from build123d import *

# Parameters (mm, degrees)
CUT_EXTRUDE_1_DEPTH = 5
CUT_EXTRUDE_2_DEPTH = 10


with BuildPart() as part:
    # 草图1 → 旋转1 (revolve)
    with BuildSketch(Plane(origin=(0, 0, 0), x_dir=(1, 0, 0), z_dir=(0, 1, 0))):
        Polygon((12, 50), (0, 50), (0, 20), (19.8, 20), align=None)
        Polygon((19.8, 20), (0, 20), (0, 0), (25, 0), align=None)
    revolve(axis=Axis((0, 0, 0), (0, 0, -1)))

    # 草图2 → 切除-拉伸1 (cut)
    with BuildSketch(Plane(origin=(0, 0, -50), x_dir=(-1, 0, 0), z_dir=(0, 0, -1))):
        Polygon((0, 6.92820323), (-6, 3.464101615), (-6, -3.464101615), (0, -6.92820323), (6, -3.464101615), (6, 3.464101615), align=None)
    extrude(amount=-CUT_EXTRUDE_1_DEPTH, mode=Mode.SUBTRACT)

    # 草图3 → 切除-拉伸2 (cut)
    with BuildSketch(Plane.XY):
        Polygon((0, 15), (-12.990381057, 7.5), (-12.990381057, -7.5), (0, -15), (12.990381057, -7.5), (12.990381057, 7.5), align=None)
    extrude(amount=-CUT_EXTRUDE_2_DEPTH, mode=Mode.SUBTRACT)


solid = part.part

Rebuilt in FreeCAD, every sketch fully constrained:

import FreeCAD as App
import Part
import Sketcher
Q = App.Units.Quantity

doc = App.newDocument("Part")
body = doc.addObject("PartDesign::Body", "Body")

sketch1 = body.newObject("Sketcher::SketchObject", "Sketch")
sketch1.AttachmentSupport = (doc.getObject("XZ_Plane"), [""])
sketch1.MapMode = "FlatFace"
sketch1.addGeometry(Part.LineSegment(App.Vector(12, -50, 0), App.Vector(0, -50, 0)), False)
sketch1.addGeometry(Part.LineSegment(App.Vector(0, -50, 0), App.Vector(0, 0, 0)), False)
sketch1.addGeometry(Part.LineSegment(App.Vector(0, 0, 0), App.Vector(25, 0, 0)), False)
sketch1.addGeometry(Part.LineSegment(App.Vector(25, 0, 0), App.Vector(12, -50, 0)), False)
sketch1.addConstraint(Sketcher.Constraint("Coincident", 0, 2, 1, 1))
sketch1.addConstraint(Sketcher.Constraint("Coincident", 1, 2, 2, 1))
sketch1.addConstraint(Sketcher.Constraint("Coincident", 2, 2, 3, 1))
sketch1.addConstraint(Sketcher.Constraint("Coincident", 3, 2, 0, 1))
sketch1.addConstraint(Sketcher.Constraint("Horizontal", 0))
sketch1.addConstraint(Sketcher.Constraint("Vertical", 1))
sketch1.addConstraint(Sketcher.Constraint("Horizontal", 2))
sketch1.addConstraint(Sketcher.Constraint("Coincident", 1, 2, -1, 1))
sketch1.addConstraint(Sketcher.Constraint("DistanceX", 0, 2, 0, 1, 12.0))
sketch1.addConstraint(Sketcher.Constraint("DistanceX", 2, 1, 2, 2, 25.0))
sketch1.addConstraint(Sketcher.Constraint("DistanceY", 1, 1, 1, 2, 50.0))
revolution = body.newObject("PartDesign::Revolution", "Revolution")
revolution.Profile = sketch1
revolution.ReferenceAxis = (sketch1, ["V_Axis"])
revolution.Angle = 360

sketch2 = body.newObject("Sketcher::SketchObject", "Sketch001")
sketch2.AttachmentSupport = (doc.getObject("XY_Plane"), [""])
sketch2.MapMode = "FlatFace"
sketch2.AttachmentOffset = App.Placement(App.Vector(0, 0, -50), App.Rotation())
sketch2.addGeometry(Part.LineSegment(App.Vector(0, 7, 0), App.Vector(6, 3, 0)), False)
sketch2.addGeometry(Part.LineSegment(App.Vector(6, 3, 0), App.Vector(6, -3, 0)), False)
sketch2.addGeometry(Part.LineSegment(App.Vector(6, -3, 0), App.Vector(0, -7, 0)), False)
sketch2.addGeometry(Part.LineSegment(App.Vector(0, -7, 0), App.Vector(-6, -3, 0)), False)
sketch2.addGeometry(Part.LineSegment(App.Vector(-6, -3, 0), App.Vector(-6, 3, 0)), False)
sketch2.addGeometry(Part.LineSegment(App.Vector(-6, 3, 0), App.Vector(0, 7, 0)), False)
sketch2.addConstraint(Sketcher.Constraint("Coincident", 0, 2, 1, 1))
sketch2.addConstraint(Sketcher.Constraint("Coincident", 1, 2, 2, 1))
sketch2.addConstraint(Sketcher.Constraint("Coincident", 2, 2, 3, 1))
sketch2.addConstraint(Sketcher.Constraint("Coincident", 3, 2, 4, 1))
sketch2.addConstraint(Sketcher.Constraint("Coincident", 4, 2, 5, 1))
sketch2.addConstraint(Sketcher.Constraint("Coincident", 5, 2, 0, 1))
sketch2.addConstraint(Sketcher.Constraint("Vertical", 1))
sketch2.addConstraint(Sketcher.Constraint("Vertical", 4))
sketch2.addConstraint(Sketcher.Constraint("Symmetric", 0, 2, 3, 2, -1, 1))
sketch2.addConstraint(Sketcher.Constraint("Symmetric", 2, 2, 5, 2, -1, 1))
sketch2.addConstraint(Sketcher.Constraint("PointOnObject", 2, 2, -2))
sketch2.addConstraint(Sketcher.Constraint("Parallel", 2, 5))
sketch2.addConstraint(Sketcher.Constraint("Horizontal", 1, 2, 3, 2))
sketch2.addConstraint(Sketcher.Constraint("Angle", 0, Q("-30 deg")))
sketch2.addConstraint(Sketcher.Constraint("DistanceX", -1, 1, 0, 2, 6.0))
sketch2.addConstraint(Sketcher.Constraint("DistanceY", -1, 1, 0, 2, 3.464102))
pocket1 = body.newObject("PartDesign::Pocket", "Pocket")
pocket1.Profile = sketch2
pocket1.Length = 5
pocket1.Reversed = True

sketch3 = body.newObject("Sketcher::SketchObject", "Sketch002")
sketch3.AttachmentSupport = (doc.getObject("XY_Plane"), [""])
sketch3.MapMode = "FlatFace"
sketch3.addGeometry(Part.LineSegment(App.Vector(0, 15, 0), App.Vector(-13, 8, 0)), False)
sketch3.addGeometry(Part.LineSegment(App.Vector(-13, 8, 0), App.Vector(-13, -8, 0)), False)
sketch3.addGeometry(Part.LineSegment(App.Vector(-13, -8, 0), App.Vector(0, -15, 0)), False)
sketch3.addGeometry(Part.LineSegment(App.Vector(0, -15, 0), App.Vector(13, -8, 0)), False)
sketch3.addGeometry(Part.LineSegment(App.Vector(13, -8, 0), App.Vector(13, 8, 0)), False)
sketch3.addGeometry(Part.LineSegment(App.Vector(13, 8, 0), App.Vector(0, 15, 0)), False)
sketch3.addConstraint(Sketcher.Constraint("Coincident", 0, 2, 1, 1))
sketch3.addConstraint(Sketcher.Constraint("Coincident", 1, 2, 2, 1))
sketch3.addConstraint(Sketcher.Constraint("Coincident", 2, 2, 3, 1))
sketch3.addConstraint(Sketcher.Constraint("Coincident", 3, 2, 4, 1))
sketch3.addConstraint(Sketcher.Constraint("Coincident", 4, 2, 5, 1))
sketch3.addConstraint(Sketcher.Constraint("Coincident", 5, 2, 0, 1))
sketch3.addConstraint(Sketcher.Constraint("Vertical", 1))
sketch3.addConstraint(Sketcher.Constraint("Vertical", 4))
sketch3.addConstraint(Sketcher.Constraint("Symmetric", 0, 2, 3, 2, -1, 1))
sketch3.addConstraint(Sketcher.Constraint("Symmetric", 2, 2, 5, 2, -1, 1))
sketch3.addConstraint(Sketcher.Constraint("PointOnObject", 2, 2, -2))
sketch3.addConstraint(Sketcher.Constraint("Parallel", 2, 5))
sketch3.addConstraint(Sketcher.Constraint("Horizontal", 1, 2, 3, 2))
sketch3.addConstraint(Sketcher.Constraint("DistanceY", 1, 2, 1, 1, 15.0))
sketch3.addConstraint(Sketcher.Constraint("Angle", 0, Q("-150 deg")))
sketch3.addConstraint(Sketcher.Constraint("Distance", 0, 15.0))
pocket2 = body.newObject("PartDesign::Pocket", "Pocket001")
pocket2.Profile = sketch3
pocket2.Length = 10

doc.recompute()
